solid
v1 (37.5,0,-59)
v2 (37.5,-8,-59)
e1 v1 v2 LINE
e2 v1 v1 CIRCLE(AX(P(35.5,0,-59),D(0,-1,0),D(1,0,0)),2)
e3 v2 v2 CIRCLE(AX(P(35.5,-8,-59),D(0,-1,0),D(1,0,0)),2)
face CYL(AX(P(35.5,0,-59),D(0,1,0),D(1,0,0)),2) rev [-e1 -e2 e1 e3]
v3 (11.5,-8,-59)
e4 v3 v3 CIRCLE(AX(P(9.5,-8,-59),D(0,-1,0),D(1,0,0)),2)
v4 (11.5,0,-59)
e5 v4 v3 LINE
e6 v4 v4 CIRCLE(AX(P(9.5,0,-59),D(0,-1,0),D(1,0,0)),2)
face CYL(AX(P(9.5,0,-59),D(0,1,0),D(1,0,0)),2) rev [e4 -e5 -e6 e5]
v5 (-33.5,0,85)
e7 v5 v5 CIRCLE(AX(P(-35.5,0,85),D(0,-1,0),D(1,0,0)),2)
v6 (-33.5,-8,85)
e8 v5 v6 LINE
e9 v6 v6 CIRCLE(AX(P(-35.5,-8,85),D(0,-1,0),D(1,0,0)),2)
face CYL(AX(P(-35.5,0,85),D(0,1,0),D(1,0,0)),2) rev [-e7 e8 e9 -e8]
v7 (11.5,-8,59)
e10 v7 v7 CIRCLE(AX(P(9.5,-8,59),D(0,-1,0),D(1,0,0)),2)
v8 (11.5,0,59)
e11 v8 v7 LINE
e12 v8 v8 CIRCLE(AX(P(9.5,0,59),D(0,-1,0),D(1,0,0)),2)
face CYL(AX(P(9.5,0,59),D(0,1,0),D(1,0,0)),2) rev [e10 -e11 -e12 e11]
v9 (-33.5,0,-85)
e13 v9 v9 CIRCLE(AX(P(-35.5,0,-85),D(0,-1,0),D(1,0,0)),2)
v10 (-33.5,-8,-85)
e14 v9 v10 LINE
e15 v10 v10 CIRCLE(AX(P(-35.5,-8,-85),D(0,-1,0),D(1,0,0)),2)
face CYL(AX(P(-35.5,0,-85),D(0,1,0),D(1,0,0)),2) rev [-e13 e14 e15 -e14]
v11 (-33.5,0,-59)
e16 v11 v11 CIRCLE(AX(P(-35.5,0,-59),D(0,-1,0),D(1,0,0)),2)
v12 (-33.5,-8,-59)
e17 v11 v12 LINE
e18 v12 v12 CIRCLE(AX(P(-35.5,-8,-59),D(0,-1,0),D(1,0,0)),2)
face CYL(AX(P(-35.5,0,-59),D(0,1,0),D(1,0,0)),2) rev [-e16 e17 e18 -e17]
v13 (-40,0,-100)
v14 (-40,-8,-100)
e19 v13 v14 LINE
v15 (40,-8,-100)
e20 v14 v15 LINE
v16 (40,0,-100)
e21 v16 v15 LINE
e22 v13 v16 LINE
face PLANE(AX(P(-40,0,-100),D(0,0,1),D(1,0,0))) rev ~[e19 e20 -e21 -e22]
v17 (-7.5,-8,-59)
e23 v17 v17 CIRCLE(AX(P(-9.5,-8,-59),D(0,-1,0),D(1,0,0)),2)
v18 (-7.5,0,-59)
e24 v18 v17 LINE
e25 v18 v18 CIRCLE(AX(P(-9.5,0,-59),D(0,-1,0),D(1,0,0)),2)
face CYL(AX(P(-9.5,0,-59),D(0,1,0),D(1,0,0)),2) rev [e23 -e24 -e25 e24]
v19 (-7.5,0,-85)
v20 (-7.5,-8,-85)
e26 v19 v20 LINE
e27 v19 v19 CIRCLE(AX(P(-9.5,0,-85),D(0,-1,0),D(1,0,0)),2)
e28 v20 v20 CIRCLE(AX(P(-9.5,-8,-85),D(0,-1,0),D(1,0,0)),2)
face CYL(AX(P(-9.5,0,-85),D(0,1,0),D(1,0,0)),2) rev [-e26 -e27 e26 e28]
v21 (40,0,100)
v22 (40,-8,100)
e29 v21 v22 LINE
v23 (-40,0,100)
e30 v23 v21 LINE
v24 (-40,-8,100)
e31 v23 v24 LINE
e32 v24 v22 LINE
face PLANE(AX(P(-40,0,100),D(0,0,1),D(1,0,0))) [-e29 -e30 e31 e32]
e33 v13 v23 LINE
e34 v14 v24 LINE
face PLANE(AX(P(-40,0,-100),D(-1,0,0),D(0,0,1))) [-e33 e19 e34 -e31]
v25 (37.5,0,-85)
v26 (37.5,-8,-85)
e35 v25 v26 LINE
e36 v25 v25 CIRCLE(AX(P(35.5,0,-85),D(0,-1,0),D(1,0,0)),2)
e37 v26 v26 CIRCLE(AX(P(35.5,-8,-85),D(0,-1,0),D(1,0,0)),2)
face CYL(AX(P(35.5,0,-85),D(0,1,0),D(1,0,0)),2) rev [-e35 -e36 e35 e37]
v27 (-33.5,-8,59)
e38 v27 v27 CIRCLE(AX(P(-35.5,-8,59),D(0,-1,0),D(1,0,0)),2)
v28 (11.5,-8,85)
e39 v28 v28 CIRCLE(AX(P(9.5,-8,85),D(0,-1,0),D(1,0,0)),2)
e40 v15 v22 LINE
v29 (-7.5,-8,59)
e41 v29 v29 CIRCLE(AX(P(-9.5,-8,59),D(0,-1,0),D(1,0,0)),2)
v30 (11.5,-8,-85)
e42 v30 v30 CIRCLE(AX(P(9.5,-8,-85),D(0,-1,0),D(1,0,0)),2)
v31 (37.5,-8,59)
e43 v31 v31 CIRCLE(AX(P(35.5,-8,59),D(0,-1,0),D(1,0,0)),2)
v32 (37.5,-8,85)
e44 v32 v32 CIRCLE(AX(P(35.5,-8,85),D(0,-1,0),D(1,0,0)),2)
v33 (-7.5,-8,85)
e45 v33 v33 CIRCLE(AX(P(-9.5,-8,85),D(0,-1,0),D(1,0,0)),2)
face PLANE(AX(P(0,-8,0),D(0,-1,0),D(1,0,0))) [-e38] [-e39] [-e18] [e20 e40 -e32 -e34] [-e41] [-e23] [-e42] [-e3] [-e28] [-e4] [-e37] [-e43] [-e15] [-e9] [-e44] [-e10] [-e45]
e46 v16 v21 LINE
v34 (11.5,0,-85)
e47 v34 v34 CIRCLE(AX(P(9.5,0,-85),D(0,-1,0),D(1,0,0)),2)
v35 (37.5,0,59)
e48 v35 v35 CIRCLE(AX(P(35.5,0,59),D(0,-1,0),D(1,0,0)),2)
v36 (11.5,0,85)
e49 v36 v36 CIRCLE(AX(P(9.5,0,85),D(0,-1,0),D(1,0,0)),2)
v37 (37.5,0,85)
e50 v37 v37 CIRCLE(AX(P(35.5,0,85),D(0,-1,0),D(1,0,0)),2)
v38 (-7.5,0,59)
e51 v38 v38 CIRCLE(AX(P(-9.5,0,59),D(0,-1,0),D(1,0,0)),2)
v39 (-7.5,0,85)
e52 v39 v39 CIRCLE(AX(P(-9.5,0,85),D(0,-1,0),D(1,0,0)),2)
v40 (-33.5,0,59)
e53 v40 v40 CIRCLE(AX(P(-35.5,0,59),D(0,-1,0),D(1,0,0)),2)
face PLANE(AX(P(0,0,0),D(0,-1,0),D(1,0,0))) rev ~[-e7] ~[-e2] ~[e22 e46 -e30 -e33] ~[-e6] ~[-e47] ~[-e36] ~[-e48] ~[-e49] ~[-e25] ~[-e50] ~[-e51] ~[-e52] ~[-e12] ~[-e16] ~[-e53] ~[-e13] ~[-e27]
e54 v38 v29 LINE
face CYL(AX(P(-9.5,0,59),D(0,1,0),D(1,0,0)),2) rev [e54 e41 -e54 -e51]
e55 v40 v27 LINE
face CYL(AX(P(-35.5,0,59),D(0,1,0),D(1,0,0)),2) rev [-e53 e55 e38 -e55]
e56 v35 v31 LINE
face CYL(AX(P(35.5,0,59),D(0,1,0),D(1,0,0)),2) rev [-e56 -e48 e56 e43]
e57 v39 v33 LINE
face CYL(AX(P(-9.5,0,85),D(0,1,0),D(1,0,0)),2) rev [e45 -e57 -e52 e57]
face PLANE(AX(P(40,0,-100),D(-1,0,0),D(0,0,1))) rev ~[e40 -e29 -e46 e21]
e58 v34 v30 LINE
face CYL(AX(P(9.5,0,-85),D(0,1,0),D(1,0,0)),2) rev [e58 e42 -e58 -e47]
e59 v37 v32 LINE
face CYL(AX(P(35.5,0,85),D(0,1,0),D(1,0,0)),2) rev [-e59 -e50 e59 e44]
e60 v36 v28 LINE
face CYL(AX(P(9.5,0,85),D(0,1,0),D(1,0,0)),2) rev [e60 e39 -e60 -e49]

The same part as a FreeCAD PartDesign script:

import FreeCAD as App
import Part
import Sketcher
from FreeCAD import Vector
Q = App.Units.Quantity


def add_polygon(sketch, points):
    """Adds a closed chain of lines whose ends are joined by coincident constraints."""
    first, n = sketch.GeometryCount, len(points)
    for a, b in zip(points, points[1:] + points[:1]):
        sketch.addGeometry(Part.LineSegment(App.Vector(*a, 0), App.Vector(*b, 0)), False)
    for i in range(n):
        sketch.addConstraint(Sketcher.Constraint("Coincident", first + i, 2, first + (i + 1) % n, 1))

doc = App.newDocument("Part")
body = doc.addObject("PartDesign::Body", "Body")

# Sketch on XZ plane
sketch1 = body.newObject("Sketcher::SketchObject", "Sketch")
sketch1.AttachmentSupport = (doc.getObject("XZ_Plane"), [""])
sketch1.MapMode = "FlatFace"
add_polygon(sketch1, [(-40, 100), (-40, -100), (40, -100), (40, 100)])  # lines 0-3
sketch1.addGeometry(Part.Circle(Vector(-35.5, -85, 0), Vector(0, 0, 1), 2), False)  # 4
sketch1.addGeometry(Part.Circle(Vector(-35.5, -59, 0), Vector(0, 0, 1), 2), False)  # 5
sketch1.addGeometry(Part.Circle(Vector(-9.5, -85, 0), Vector(0, 0, 1), 2), False)  # 6
sketch1.addGeometry(Part.Circle(Vector(-9.5, -59, 0), Vector(0, 0, 1), 2), False)  # 7
sketch1.addGeometry(Part.Circle(Vector(9.5, -85, 0), Vector(0, 0, 1), 2), False)  # 8
sketch1.addGeometry(Part.Circle(Vector(9.5, -59, 0), Vector(0, 0, 1), 2), False)  # 9
sketch1.addGeometry(Part.Circle(Vector(35.5, -85, 0), Vector(0, 0, 1), 2), False)  # 10
sketch1.addGeometry(Part.Circle(Vector(35.5, -59, 0), Vector(0, 0, 1), 2), False)  # 11
sketch1.addGeometry(Part.Circle(Vector(-35.5, 59, 0), Vector(0, 0, 1), 2), False)  # 12
sketch1.addGeometry(Part.Circle(Vector(-35.5, 85, 0), Vector(0, 0, 1), 2), False)  # 13
sketch1.addGeometry(Part.Circle(Vector(-9.5, 59, 0), Vector(0, 0, 1), 2), False)  # 14
sketch1.addGeometry(Part.Circle(Vector(-9.5, 85, 0), Vector(0, 0, 1), 2), False)  # 15
sketch1.addGeometry(Part.Circle(Vector(9.5, 59, 0), Vector(0, 0, 1), 2), False)  # 16
sketch1.addGeometry(Part.Circle(Vector(9.5, 85, 0), Vector(0, 0, 1), 2), False)  # 17
sketch1.addGeometry(Part.Circle(Vector(35.5, 59, 0), Vector(0, 0, 1), 2), False)  # 18
sketch1.addGeometry(Part.Circle(Vector(35.5, 85, 0), Vector(0, 0, 1), 2), False)  # 19
sketch1.addConstraint([
    Sketcher.Constraint("Vertical", 0),
    Sketcher.Constraint("Horizontal", 1),
    Sketcher.Constraint("Vertical", 2),
    Sketcher.Constraint("Horizontal", 3),
    Sketcher.Constraint("Equal", 4, 5),
    Sketcher.Constraint("Equal", 5, 6),
    Sketcher.Constraint("Equal", 6, 7),
    Sketcher.Constraint("Equal", 7, 8),
    Sketcher.Constraint("Equal", 8, 9),
    Sketcher.Constraint("Equal", 9, 10),
    Sketcher.Constraint("Equal", 10, 11),
    Sketcher.Constraint("Equal", 11, 12),
    Sketcher.Constraint("Equal", 12, 13),
    Sketcher.Constraint("Equal", 13, 14),
    Sketcher.Constraint("Equal", 14, 15),
    Sketcher.Constraint("Equal", 15, 16),
    Sketcher.Constraint("Equal", 16, 17),
    Sketcher.Constraint("Equal", 17, 18),
    Sketcher.Constraint("Equal", 18, 19),
    Sketcher.Constraint("Symmetric", 11, 3, 12, 3, -1, 1),
    Sketcher.Constraint("Symmetric", 10, 3, 13, 3, -1, 1),
    Sketcher.Constraint("Symmetric", 9, 3, 14, 3, -1, 1),
    Sketcher.Constraint("Symmetric", 8, 3, 15, 3, -1, 1),
    Sketcher.Constraint("Symmetric", 7, 3, 16, 3, -1, 1),
    Sketcher.Constraint("Symmetric", 6, 3, 17, 3, -1, 1),
    Sketcher.Constraint("Symmetric", 5, 3, 18, 3, -1, 1),
    Sketcher.Constraint("Symmetric", 4, 3, 19, 3, -1, 1),
    Sketcher.Constraint("Symmetric", 0, 2, 2, 2, -1, 1),
    Sketcher.Constraint("Symmetric", 6, 3, 8, 3, -2),
    Sketcher.Constraint("Symmetric", 7, 3, 9, 3, -2),
    Sketcher.Constraint("Symmetric", 4, 3, 10, 3, -2),
    Sketcher.Constraint("Symmetric", 5, 3, 11, 3, -2),
    Sketcher.Constraint("Horizontal", 4, 3, 6, 3),
    Sketcher.Constraint("Horizontal", 5, 3, 7, 3),
    Sketcher.Constraint("Vertical", 4, 3, 5, 3),
    Sketcher.Constraint("Vertical", 6, 3, 7, 3),
    Sketcher.Constraint("Diameter", 4, Q("4 mm")),
    Sketcher.Constraint("DistanceX", 1, 1, 1, 2, Q("80 mm")),
    Sketcher.Constraint("DistanceY", 0, 2, 0, 1, Q("200 mm")),
    Sketcher.Constraint("DistanceY", 4, 3, -1, 1, Q("85 mm")),
    Sketcher.Constraint("DistanceY", 5, 3, -1, 1, Q("59 mm")),
    Sketcher.Constraint("DistanceX", 4, 3, 6, 3, Q("26 mm")),
    Sketcher.Constraint("DistanceX", 6, 3, 8, 3, Q("19 mm")),
])
pad1 = body.newObject("PartDesign::Pad", "Pad")
pad1.Profile = sketch1
pad1.Length = 8

doc.recompute()
